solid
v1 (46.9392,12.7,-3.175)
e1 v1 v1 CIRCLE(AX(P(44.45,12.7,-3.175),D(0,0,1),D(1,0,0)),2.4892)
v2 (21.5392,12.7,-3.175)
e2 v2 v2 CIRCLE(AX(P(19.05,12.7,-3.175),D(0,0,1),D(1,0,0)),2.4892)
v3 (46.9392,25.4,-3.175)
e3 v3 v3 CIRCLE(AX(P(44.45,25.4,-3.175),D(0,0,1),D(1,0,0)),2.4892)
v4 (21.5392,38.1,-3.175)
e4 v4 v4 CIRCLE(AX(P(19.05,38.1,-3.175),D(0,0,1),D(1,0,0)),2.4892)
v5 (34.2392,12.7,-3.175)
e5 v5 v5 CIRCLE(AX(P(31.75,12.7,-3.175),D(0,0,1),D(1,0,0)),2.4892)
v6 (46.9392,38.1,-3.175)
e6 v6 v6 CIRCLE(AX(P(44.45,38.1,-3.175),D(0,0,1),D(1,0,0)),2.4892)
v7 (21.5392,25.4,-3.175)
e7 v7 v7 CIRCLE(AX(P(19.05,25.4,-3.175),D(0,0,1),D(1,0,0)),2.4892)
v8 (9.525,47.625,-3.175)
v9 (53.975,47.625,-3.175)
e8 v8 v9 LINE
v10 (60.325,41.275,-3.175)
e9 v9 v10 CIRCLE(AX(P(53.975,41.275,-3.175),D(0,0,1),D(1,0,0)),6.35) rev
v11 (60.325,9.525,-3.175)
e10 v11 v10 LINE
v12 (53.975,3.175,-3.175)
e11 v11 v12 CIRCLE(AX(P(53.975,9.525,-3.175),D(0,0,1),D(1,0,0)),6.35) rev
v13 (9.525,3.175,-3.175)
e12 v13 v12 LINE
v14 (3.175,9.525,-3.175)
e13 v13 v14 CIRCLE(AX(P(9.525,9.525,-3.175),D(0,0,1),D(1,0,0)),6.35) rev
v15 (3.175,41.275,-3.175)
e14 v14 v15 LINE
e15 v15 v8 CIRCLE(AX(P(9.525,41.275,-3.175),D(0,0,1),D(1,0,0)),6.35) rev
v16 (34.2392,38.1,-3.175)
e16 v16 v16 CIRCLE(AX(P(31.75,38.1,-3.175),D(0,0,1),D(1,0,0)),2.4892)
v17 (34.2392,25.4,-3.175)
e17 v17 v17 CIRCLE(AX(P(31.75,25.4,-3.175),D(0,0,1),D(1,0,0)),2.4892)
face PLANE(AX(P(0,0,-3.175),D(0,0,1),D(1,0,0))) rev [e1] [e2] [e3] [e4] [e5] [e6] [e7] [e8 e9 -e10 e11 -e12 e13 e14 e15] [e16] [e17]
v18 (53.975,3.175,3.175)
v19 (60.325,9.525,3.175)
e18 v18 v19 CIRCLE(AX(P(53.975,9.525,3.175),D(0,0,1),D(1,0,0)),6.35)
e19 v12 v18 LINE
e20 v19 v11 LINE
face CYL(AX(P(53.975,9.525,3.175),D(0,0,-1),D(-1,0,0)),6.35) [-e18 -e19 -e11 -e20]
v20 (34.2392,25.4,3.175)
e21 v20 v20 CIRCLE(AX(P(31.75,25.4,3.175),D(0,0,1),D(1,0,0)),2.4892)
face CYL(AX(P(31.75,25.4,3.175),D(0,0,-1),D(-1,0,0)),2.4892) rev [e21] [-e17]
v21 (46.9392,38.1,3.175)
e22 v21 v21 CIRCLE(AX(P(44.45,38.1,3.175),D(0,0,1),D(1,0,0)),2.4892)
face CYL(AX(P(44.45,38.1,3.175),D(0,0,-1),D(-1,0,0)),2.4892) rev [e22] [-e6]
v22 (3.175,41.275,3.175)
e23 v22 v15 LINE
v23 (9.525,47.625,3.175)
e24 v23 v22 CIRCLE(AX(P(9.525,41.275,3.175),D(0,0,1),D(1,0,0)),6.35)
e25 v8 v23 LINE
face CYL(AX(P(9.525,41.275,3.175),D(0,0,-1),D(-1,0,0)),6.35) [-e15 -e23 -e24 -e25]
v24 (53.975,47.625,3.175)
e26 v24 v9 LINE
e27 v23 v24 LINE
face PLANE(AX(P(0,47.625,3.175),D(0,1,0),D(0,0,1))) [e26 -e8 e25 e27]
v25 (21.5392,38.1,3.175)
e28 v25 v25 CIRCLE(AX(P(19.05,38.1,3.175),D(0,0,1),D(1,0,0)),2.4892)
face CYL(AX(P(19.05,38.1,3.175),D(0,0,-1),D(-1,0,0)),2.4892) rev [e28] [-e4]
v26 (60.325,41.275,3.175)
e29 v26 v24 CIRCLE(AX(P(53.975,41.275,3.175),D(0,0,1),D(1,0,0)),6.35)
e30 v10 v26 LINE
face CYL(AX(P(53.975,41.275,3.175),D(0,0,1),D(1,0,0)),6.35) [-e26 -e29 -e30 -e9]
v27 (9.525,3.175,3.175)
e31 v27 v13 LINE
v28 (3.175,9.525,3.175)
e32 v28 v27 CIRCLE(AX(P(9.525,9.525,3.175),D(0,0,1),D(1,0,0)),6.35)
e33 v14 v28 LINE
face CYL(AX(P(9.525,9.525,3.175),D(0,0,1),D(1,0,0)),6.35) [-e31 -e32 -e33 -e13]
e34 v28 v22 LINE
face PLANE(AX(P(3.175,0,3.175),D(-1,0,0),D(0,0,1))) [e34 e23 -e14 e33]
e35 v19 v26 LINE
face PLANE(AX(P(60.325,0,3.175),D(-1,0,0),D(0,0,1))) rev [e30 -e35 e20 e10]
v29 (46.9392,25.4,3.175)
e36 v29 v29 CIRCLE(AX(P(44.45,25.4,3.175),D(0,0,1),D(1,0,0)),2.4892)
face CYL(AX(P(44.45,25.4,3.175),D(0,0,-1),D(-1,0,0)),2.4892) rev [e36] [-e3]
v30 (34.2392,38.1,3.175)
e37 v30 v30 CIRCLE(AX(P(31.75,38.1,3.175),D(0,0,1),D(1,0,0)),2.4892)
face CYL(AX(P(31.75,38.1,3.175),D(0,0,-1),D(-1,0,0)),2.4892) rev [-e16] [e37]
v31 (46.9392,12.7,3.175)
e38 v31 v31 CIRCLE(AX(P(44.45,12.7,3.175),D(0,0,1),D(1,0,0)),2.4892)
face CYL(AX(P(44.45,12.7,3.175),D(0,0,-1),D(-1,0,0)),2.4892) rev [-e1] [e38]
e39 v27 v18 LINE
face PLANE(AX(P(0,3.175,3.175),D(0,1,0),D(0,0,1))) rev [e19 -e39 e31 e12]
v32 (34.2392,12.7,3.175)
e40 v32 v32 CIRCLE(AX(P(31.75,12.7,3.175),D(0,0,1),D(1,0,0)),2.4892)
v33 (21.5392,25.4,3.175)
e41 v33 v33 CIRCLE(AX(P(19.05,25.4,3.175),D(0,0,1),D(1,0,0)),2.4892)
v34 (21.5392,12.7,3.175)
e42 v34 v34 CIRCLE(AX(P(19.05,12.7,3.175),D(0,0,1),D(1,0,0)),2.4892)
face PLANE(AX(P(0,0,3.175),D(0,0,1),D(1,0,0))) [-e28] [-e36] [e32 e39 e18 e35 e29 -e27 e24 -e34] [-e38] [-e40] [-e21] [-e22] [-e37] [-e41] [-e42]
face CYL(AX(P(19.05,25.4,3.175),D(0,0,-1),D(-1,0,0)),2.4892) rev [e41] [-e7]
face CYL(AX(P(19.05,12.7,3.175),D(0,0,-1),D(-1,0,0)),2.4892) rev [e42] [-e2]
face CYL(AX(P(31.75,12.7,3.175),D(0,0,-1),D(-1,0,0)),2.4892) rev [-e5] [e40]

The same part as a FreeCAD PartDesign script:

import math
import FreeCAD as App
import Part
import Sketcher

V = App.Vector
Q = App.Units.Quantity


def edges_at(feature, points):
    """Names of the edges that pass closest to the given points."""
    edges = feature.Shape.Edges
    near = lambda p: min(range(len(edges)), key=lambda i: edges[i].distToShape(Part.Vertex(*p))[0])
    return sorted({f"Edge{near(p) + 1}" for p in points})


def add_polygon(sketch, points):
    """Adds a closed chain of lines whose ends are joined by coincident constraints."""
    first, n = sketch.GeometryCount, len(points)
    for a, b in zip(points, points[1:] + points[:1]):
        sketch.addGeometry(Part.LineSegment(App.Vector(*a, 0), App.Vector(*b, 0)), False)
    for i in range(n):
        sketch.addConstraint(Sketcher.Constraint("Coincident", first + i, 2, first + (i + 1) % n, 1))

doc = App.newDocument("Part")
body = doc.addObject("PartDesign::Body", "Body")

# Sketch on XY plane
sketch1 = doc.addObject("Sketcher::SketchObject", "Sketch")
body.addObject(sketch1)
sketch1.AttachmentSupport = (doc.XY_Plane, [""])
sketch1.MapMode = "FlatFace"
add_polygon(sketch1, [(60.3, 47.6), (3.2, 47.6), (3.2, 3.2), (60.3, 3.2)])  # lines 0-3
sketch1.addGeometry(Part.ArcOfCircle(Part.Circle(V(31.8, 38.1, 0), V(0, 0, 1), 2.5), math.radians(0), math.radians(90)), False)  # 4
sketch1.addGeometry(Part.ArcOfCircle(Part.Circle(V(31.8, 38.1, 0), V(0, 0, 1), 2.5), math.radians(-90), math.radians(0)), False)  # 5
sketch1.addGeometry(Part.ArcOfCircle(Part.Circle(V(31.8, 38.1, 0), V(0, 0, 1), 2.5), math.radians(90), math.radians(270)), False)  # 6
sketch1.addGeometry(Part.ArcOfCircle(Part.Circle(V(31.8, 12.7, 0), V(0, 0, 1), 2.5), math.radians(-90), math.radians(0)), False)  # 7
sketch1.addGeometry(Part.ArcOfCircle(Part.Circle(V(31.8, 12.7, 0), V(0, 0, 1), 2.5), math.radians(90), math.radians(270)), False)  # 8
sketch1.addGeometry(Part.ArcOfCircle(Part.Circle(V(31.8, 12.7, 0), V(0, 0, 1), 2.5), math.radians(0), math.radians(90)), False)  # 9
sketch1.addGeometry(Part.ArcOfCircle(Part.Circle(V(31.8, 25.4, 0), V(0, 0, 1), 2.5), math.radians(0), math.radians(90)), False)  # 10
sketch1.addGeometry(Part.ArcOfCircle(Part.Circle(V(31.8, 25.4, 0), V(0, 0, 1), 2.5), math.radians(-90), math.radians(0)), False)  # 11
sketch1.addGeometry(Part.ArcOfCircle(Part.Circle(V(31.8, 25.4, 0), V(0, 0, 1), 2.5), math.radians(90), math.radians(270)), False)  # 12
sketch1.addGeometry(Part.Circle(V(44.5, 12.7, 0), V(0, 0, 1), 2.5), False)  # 13
sketch1.addGeometry(Part.Circle(V(44.5, 25.4, 0), V(0, 0, 1), 2.5), False)  # 14
sketch1.addGeometry(Part.Circle(V(44.5, 38.1, 0), V(0, 0, 1), 2.5), False)  # 15
sketch1.addGeometry(Part.Circle(V(19.1, 38.1, 0), V(0, 0, 1), 2.5), False)  # 16
sketch1.addGeometry(Part.Circle(V(19.1, 12.7, 0), V(0, 0, 1), 2.5), False)  # 17
sketch1.addGeometry(Part.Circle(V(19.1, 25.4, 0), V(0, 0, 1), 2.5), False)  # 18
sketch1.addConstraint([
    Sketcher.Constraint("Tangent", 4, 1, 5, 2),
    Sketcher.Constraint("Tangent", 5, 1, 6, 2),
    Sketcher.Constraint("Tangent", 6, 1, 4, 2),
    Sketcher.Constraint("Tangent", 7, 1, 8, 2),
    Sketcher.Constraint("Tangent", 8, 1, 9, 2),
    Sketcher.Constraint("Tangent", 9, 1, 7, 2),
    Sketcher.Constraint("Tangent", 10, 1, 11, 2),
    Sketcher.Constraint("Tangent", 11, 1, 12, 2),
    Sketcher.Constraint("Tangent", 12, 1, 10, 2),
    Sketcher.Constraint("Horizontal", 0),
    Sketcher.Constraint("Vertical", 1),
    Sketcher.Constraint("Horizontal", 2),
    Sketcher.Constraint("Vertical", 3),
    Sketcher.Constraint("Equal", 6, 7),
    Sketcher.Constraint("Equal", 9, 10),
    Sketcher.Constraint("Equal", 12, 13),
    Sketcher.Constraint("Equal", 13, 14),
    Sketcher.Constraint("Equal", 14, 15),
    Sketcher.Constraint("Equal", 15, 16),
    Sketcher.Constraint("Equal", 16, 17),
    Sketcher.Constraint("Equal", 17, 18),
    Sketcher.Constraint("Horizontal", 9, 3, 13, 3),
    Sketcher.Constraint("Horizontal", 12, 3, 14, 3),
    Sketcher.Constraint("Horizontal", 6, 3, 15, 3),
    Sketcher.Constraint("Horizontal", 15, 3, 16, 3),
    Sketcher.Constraint("Horizontal", 13, 3, 17, 3),
    Sketcher.Constraint("Horizontal", 14, 3, 18, 3),
    Sketcher.Constraint("Horizontal", 16, 3, 4, 1),
    Sketcher.Constraint("Horizontal", 17, 3, 9, 1),
    Sketcher.Constraint("Horizontal", 18, 3, 10, 1),
    Sketcher.Constraint("Vertical", 6, 3, 7, 3),
    Sketcher.Constraint("Vertical", 9, 3, 10, 3),
    Sketcher.Constraint("Vertical", 13, 3, 14, 3),
    Sketcher.Constraint("Vertical", 14, 3, 15, 3),
    Sketcher.Constraint("Vertical", 16, 3, 17, 3),
    Sketcher.Constraint("Vertical", 17, 3, 18, 3),
    Sketcher.Constraint("Vertical", 12, 3, 5, 1),
    Sketcher.Constraint("Vertical", 5, 1, 6, 1),
    Sketcher.Constraint("Vertical", 6, 1, 7, 1),
    Sketcher.Constraint("Vertical", 7, 1, 8, 1),
    Sketcher.Constraint("Vertical", 8, 1, 11, 1),
    Sketcher.Constraint("Vertical", 11, 1, 12, 1),
    Sketcher.Constraint("Diameter", 13, Q("0.196 in")),
    Sketcher.Constraint("DistanceY", -1, 1, 10, 3, Q("1 in")),
    Sketcher.Constraint("DistanceY", 7, 3, 5, 3, Q("1 in")),
    Sketcher.Constraint("DistanceX", 0, 2, 0, 1, Q("2.25 in")),
    Sketcher.Constraint("DistanceY", 1, 2, 1, 1, Q("1.75 in")),
    Sketcher.Constraint("DistanceY", -1, 1, 4, 3, Q("1.5 in")),
    Sketcher.Constraint("DistanceX", 7, 3, 13, 3, Q("0.5 in")),
    Sketcher.Constraint("DistanceX", 16, 3, 6, 3, Q("0.5 in")),
    Sketcher.Constraint("DistanceX", -1, 1, 4, 3, Q("1.25 in")),
    Sketcher.Constraint("DistanceX", -1, 1, 0, 2, Q("0.125 in")),
    Sketcher.Constraint("DistanceY", -1, 1, 0, 2, Q("1.875 in")),
])
pad1 = doc.addObject("PartDesign::Pad", "Pad")
body.addObject(pad1)
pad1.Profile = sketch1
pad1.Length = Q("0.25 in")
pad1.Midplane = True
doc.recompute()

fillet = doc.addObject("PartDesign::Fillet", "Fillet")
body.addObject(fillet)
fillet.Base = (pad1, edges_at(pad1, [
    (60.325, 47.625, -1.587),
    (60.325, 3.175, -1.587),
    (3.175, 3.175, -1.587),
    (3.175, 47.625, -1.587),
]))
fillet.Radius = Q("0.25 in")

doc.recompute()
